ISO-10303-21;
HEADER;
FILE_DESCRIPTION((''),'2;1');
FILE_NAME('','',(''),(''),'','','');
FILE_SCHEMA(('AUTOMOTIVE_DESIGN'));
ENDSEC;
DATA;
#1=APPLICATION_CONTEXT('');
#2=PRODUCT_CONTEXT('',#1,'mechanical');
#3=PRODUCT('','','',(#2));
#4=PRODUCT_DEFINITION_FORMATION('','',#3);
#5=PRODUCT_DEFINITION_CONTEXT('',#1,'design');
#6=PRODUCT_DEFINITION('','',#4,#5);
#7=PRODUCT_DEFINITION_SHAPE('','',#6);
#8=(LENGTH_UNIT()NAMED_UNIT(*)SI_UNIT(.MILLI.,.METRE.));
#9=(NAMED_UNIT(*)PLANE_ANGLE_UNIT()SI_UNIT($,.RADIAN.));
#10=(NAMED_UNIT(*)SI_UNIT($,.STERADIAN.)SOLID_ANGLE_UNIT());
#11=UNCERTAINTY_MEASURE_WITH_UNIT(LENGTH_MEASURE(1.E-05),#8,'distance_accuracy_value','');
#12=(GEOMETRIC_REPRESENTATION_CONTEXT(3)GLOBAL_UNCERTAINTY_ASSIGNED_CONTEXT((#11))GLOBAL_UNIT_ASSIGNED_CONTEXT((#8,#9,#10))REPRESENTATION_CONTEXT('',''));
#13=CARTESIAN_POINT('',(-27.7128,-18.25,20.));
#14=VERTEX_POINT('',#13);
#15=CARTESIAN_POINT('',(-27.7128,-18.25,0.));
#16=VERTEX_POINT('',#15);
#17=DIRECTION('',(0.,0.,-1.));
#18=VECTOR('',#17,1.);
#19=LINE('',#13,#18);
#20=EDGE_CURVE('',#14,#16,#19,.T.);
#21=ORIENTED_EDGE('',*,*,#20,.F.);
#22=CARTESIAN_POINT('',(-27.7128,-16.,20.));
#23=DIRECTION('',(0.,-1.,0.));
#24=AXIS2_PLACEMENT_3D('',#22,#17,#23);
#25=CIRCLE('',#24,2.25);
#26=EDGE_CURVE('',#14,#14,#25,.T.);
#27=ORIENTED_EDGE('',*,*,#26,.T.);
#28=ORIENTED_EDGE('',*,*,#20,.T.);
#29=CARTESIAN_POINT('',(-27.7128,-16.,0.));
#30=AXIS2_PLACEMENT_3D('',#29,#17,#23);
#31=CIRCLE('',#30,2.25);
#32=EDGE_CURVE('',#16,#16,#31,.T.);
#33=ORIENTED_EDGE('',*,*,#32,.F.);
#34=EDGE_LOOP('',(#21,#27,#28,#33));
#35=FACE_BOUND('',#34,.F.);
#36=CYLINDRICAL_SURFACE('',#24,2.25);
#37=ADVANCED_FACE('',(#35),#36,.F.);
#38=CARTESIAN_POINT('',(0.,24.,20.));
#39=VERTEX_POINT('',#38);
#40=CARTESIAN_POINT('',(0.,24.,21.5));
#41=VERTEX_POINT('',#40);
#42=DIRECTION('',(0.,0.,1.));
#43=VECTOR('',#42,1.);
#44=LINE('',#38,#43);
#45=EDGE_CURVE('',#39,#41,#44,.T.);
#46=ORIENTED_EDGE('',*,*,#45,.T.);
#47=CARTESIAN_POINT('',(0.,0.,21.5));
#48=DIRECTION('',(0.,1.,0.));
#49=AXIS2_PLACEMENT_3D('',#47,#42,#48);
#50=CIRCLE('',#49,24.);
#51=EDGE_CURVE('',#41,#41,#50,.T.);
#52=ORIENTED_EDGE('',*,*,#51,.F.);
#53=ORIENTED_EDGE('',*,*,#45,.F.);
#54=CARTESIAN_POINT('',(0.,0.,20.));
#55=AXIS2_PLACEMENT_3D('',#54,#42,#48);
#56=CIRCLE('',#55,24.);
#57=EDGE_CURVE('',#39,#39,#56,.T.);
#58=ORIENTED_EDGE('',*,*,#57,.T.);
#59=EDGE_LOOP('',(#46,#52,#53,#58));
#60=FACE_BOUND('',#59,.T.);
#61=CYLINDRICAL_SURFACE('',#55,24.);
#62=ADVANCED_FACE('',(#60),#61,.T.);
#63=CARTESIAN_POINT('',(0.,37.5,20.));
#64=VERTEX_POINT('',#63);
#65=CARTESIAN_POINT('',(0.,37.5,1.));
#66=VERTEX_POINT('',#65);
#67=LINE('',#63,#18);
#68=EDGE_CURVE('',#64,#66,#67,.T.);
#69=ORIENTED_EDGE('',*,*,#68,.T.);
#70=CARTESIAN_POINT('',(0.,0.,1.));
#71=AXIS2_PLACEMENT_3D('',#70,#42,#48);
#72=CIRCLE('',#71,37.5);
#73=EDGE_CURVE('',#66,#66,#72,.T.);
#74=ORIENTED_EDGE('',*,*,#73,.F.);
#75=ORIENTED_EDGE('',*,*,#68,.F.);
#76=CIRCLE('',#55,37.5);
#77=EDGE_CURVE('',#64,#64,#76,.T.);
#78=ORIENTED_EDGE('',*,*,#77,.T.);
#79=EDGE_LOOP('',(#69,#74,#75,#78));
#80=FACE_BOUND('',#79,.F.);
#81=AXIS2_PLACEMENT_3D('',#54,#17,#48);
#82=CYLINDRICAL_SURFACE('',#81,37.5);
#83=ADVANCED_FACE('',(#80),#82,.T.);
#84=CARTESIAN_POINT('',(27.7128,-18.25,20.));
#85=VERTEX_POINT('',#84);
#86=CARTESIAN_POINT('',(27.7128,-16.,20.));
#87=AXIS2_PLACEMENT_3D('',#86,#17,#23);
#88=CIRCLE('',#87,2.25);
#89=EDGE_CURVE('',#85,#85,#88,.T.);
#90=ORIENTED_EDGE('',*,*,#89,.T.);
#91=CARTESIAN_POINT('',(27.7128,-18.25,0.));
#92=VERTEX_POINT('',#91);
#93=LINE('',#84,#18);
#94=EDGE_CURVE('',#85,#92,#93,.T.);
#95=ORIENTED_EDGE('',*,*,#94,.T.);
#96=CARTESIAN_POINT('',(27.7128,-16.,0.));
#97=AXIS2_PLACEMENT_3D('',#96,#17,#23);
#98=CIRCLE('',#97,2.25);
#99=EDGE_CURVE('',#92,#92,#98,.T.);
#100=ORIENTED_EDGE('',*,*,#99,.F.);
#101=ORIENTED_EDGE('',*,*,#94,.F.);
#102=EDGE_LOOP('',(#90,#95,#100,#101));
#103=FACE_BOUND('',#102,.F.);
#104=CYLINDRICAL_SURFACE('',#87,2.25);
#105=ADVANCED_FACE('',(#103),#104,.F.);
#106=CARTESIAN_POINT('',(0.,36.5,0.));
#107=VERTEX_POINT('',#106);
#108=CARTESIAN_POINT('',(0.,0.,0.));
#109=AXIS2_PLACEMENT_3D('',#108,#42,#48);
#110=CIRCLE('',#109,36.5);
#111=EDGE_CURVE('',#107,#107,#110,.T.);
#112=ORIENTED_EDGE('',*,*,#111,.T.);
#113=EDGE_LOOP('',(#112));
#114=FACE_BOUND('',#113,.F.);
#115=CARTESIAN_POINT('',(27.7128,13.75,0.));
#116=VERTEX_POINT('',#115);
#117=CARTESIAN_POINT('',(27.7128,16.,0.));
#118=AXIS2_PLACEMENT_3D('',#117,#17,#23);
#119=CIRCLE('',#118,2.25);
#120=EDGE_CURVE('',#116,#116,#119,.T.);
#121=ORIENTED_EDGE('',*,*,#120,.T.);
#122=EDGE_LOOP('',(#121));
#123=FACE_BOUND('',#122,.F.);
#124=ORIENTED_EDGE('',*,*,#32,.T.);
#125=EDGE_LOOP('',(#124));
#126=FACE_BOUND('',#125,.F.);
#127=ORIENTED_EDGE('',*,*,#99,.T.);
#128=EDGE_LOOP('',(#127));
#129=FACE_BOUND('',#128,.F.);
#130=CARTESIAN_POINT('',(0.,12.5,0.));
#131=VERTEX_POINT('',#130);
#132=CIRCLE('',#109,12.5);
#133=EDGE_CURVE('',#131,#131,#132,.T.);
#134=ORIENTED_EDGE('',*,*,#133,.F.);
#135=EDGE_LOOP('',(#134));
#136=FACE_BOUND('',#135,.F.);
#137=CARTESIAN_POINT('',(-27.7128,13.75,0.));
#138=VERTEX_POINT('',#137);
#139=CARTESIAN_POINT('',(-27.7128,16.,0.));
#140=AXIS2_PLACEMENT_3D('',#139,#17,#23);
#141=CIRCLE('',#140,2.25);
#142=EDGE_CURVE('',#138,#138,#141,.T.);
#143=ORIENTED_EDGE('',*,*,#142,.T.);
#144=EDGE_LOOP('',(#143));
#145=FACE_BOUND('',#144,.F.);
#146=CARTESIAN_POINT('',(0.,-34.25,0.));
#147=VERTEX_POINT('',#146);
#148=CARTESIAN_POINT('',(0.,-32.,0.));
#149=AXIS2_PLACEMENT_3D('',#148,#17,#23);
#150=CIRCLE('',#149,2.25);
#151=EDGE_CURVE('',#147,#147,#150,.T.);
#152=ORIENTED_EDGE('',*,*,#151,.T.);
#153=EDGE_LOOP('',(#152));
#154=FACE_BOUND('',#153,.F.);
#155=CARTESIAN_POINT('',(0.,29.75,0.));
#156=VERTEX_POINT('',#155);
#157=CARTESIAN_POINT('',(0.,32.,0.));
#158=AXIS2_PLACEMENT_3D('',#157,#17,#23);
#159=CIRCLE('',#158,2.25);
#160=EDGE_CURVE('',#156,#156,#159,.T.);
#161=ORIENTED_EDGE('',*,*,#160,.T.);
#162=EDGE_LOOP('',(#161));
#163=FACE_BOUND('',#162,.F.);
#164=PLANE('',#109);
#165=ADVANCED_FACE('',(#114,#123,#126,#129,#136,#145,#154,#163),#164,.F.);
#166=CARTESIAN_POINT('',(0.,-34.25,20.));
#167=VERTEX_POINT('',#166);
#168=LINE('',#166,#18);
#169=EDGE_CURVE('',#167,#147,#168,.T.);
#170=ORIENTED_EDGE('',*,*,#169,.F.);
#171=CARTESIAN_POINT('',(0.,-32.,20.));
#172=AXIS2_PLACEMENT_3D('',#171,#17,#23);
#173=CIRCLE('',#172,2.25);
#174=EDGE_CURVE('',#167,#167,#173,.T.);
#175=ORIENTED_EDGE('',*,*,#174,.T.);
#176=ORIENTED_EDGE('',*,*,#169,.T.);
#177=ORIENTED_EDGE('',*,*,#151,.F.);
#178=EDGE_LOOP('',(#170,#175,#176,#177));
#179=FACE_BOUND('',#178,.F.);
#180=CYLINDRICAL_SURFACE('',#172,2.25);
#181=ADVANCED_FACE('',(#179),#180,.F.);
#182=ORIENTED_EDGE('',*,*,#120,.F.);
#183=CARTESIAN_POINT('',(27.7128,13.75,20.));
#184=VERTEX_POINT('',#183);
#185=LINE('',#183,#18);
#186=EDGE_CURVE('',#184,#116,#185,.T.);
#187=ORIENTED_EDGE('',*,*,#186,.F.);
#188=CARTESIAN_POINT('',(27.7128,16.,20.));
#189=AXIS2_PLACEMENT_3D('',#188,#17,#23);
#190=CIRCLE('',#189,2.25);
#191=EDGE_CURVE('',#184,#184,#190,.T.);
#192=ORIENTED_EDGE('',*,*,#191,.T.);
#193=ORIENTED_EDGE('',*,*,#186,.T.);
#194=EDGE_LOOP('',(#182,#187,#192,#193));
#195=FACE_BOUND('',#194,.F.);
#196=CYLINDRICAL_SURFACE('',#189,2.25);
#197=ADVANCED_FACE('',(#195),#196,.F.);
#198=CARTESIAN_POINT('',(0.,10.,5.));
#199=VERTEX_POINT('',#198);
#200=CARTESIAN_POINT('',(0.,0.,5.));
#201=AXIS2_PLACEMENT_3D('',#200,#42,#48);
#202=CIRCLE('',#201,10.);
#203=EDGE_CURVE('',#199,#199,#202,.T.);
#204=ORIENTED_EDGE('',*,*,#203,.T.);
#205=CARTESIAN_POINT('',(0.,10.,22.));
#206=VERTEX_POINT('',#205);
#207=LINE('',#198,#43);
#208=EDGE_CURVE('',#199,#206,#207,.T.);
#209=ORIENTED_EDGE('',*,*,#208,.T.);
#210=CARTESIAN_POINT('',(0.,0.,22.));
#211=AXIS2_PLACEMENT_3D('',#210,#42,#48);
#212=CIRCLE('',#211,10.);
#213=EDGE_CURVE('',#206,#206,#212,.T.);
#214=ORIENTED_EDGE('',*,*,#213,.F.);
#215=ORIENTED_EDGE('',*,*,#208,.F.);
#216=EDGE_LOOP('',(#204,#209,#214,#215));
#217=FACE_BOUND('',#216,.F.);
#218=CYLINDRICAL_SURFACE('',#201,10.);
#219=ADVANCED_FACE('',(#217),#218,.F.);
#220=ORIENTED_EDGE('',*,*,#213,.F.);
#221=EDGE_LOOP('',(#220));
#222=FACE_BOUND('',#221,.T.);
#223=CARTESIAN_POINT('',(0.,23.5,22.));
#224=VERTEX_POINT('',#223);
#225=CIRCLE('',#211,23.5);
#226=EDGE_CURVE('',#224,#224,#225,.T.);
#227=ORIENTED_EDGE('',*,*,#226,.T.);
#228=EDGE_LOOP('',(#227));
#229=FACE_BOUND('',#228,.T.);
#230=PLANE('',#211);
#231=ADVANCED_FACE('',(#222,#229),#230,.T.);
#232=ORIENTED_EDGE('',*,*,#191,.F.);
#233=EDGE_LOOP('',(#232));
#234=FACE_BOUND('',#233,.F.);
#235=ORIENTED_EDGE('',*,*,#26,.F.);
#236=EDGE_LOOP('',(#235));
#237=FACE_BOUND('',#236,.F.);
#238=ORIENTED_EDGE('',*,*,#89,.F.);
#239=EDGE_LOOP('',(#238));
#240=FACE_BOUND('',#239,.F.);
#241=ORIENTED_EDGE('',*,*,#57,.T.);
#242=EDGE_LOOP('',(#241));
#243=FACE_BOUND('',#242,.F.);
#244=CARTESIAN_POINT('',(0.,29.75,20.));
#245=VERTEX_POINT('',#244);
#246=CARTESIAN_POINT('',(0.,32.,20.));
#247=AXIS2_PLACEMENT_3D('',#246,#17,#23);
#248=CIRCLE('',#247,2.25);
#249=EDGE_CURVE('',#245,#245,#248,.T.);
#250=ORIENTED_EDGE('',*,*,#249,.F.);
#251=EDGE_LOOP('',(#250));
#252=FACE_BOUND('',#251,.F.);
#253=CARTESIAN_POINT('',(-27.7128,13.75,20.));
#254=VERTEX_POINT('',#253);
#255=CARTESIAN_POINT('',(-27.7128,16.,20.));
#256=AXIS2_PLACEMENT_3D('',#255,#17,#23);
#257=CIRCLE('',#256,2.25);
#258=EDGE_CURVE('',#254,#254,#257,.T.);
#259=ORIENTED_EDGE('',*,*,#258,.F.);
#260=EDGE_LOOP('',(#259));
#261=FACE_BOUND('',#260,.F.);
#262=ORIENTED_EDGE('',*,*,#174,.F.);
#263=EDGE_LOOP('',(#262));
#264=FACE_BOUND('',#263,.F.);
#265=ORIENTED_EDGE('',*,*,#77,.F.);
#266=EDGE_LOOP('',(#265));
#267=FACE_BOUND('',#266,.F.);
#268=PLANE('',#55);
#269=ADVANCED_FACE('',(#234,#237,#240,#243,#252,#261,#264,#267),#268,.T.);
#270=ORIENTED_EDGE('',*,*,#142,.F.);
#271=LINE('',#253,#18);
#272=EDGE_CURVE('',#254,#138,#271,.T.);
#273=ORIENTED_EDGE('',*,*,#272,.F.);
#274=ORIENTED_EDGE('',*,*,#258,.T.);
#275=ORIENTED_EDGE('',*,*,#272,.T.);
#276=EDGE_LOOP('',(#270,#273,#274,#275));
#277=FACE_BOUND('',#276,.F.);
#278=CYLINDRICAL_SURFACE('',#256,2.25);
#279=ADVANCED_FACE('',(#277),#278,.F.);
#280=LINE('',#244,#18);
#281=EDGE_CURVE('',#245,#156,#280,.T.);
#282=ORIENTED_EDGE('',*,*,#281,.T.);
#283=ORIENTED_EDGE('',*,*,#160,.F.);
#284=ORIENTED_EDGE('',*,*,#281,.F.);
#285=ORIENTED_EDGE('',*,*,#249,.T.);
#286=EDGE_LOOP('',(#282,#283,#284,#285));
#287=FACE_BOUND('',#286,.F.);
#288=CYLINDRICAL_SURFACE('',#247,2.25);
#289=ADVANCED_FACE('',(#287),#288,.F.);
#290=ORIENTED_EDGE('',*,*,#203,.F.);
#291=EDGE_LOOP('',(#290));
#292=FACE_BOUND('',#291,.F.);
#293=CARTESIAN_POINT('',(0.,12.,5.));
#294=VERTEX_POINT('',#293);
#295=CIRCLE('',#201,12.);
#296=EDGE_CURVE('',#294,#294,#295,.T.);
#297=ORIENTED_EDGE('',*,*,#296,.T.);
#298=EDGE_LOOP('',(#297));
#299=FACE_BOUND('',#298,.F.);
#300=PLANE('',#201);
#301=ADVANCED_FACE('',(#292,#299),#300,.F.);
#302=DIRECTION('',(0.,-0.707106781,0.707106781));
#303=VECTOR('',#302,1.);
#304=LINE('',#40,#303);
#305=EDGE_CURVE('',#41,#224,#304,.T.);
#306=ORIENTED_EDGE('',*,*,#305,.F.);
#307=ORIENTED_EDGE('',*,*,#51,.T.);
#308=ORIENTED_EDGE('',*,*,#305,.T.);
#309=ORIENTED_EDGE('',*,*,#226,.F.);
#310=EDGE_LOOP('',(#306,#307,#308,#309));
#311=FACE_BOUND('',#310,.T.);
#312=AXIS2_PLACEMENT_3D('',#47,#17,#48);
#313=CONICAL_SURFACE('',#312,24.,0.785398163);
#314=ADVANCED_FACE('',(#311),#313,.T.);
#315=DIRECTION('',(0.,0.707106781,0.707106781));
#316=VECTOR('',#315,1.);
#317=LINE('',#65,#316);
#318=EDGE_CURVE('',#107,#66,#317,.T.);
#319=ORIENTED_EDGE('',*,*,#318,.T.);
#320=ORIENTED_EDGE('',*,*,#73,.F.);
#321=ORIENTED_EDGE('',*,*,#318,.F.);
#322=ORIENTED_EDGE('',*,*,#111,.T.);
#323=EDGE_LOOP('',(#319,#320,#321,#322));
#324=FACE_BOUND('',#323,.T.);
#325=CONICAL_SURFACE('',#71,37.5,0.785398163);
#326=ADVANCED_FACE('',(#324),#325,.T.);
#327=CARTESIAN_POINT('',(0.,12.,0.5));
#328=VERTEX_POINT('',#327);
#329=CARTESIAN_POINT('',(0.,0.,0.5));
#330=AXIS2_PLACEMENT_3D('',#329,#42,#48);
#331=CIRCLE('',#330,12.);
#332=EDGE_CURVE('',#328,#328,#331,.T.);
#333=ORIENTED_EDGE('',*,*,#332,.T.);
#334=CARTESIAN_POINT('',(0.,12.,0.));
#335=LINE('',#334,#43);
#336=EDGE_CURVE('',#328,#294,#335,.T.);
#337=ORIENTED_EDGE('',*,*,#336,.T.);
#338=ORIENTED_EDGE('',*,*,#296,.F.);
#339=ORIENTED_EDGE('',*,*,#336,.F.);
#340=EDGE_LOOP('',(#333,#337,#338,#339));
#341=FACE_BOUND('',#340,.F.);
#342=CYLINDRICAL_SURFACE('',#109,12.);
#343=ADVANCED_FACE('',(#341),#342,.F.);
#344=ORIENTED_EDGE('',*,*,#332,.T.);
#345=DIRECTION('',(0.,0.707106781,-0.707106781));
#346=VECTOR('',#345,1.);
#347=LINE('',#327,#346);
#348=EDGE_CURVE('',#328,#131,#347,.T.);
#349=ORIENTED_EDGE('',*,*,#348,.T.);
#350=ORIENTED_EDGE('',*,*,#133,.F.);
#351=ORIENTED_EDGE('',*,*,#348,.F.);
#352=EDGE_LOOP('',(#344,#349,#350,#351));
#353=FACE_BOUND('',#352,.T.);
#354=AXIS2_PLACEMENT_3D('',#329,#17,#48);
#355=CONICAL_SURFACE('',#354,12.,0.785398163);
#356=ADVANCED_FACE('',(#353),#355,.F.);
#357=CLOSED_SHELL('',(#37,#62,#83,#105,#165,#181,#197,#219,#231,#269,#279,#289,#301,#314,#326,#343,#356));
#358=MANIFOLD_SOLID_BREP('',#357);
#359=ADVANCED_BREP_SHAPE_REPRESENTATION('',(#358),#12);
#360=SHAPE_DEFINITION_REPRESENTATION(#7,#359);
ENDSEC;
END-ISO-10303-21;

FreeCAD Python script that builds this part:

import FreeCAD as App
import Part
import Sketcher
from FreeCAD import Vector
Q = App.Units.Quantity


def edges_at(feature, points):
    """Names of the edges that pass closest to the given points."""
    edges = feature.Shape.Edges
    near = lambda p: min(range(len(edges)), key=lambda i: edges[i].distToShape(Part.Vertex(*p))[0])
    return sorted({f"Edge{near(p) + 1}" for p in points})

doc = App.newDocument("Part")
params = doc.addObject("Spreadsheet::Sheet", "Params")
for row, (alias, value) in enumerate([
    ("sketch1_width", "2 mm"),
    ("sketch1_height", "5 mm"),
    ("sketch1_height2", "20 mm"),
    ("revolution_angle", "360 deg"),
    ("chamfer_size", "0.5 mm"),
    ("sketch2_diameter", "4.5 mm"),
    ("hole_diameter", "4.5 mm"),
    ("chamfer2_size", "1 mm"),
    ("chamfer3_size", "0.5 mm"),
], start=1):
    params.set(f"A{row}", alias)
    params.set(f"B{row}", "=" + value)
    params.setAlias(f"B{row}", alias)

body = doc.addObject("PartDesign::Body", "Body")

sketch1 = doc.addObject("Sketcher::SketchObject", "Sketch")
body.addObject(sketch1)
sketch1.AttachmentSupport = (doc.YZ_Plane, [""])
sketch1.MapMode = "FlatFace"
sketch1.addGeometry([
    Part.LineSegment(Vector(12, 5, 0), Vector(12, 0, 0)),
    Part.LineSegment(Vector(12, 0, 0), Vector(37.5, 0, 0)),
    Part.LineSegment(Vector(37.5, 0, 0), Vector(37.5, 20, 0)),
    Part.LineSegment(Vector(37.5, 20, 0), Vector(24, 20, 0)),
    Part.LineSegment(Vector(24, 20, 0), Vector(24, 22, 0)),
    Part.LineSegment(Vector(24, 22, 0), Vector(10, 22, 0)),
    Part.LineSegment(Vector(10, 22, 0), Vector(10, 5, 0)),
    Part.LineSegment(Vector(10, 5, 0), Vector(12, 5, 0)),
], False)
sketch1.addConstraint([
    Sketcher.Constraint("Coincident", 0, 2, 1, 1),
    Sketcher.Constraint("Coincident", 1, 2, 2, 1),
    Sketcher.Constraint("Coincident", 2, 2, 3, 1),
    Sketcher.Constraint("Coincident", 3, 2, 4, 1),
    Sketcher.Constraint("Coincident", 4, 2, 5, 1),
    Sketcher.Constraint("Coincident", 5, 2, 6, 1),
    Sketcher.Constraint("Coincident", 6, 2, 7, 1),
    Sketcher.Constraint("Coincident", 7, 2, 0, 1),
    Sketcher.Constraint("Vertical", 0),
    Sketcher.Constraint("Horizontal", 1),
    Sketcher.Constraint("Vertical", 2),
    Sketcher.Constraint("Horizontal", 3),
    Sketcher.Constraint("Vertical", 4),
    Sketcher.Constraint("Horizontal", 5),
    Sketcher.Constraint("Vertical", 6),
    Sketcher.Constraint("Horizontal", 7),
    Sketcher.Constraint("PointOnObject", 0, 2, -1),
    Sketcher.Constraint("Equal", 7, 4),
    Sketcher.Constraint("DistanceX", 7, 1, 7, 2, Q("2 mm")),
    Sketcher.Constraint("DistanceY", 0, 2, 0, 1, Q("5 mm")),
    Sketcher.Constraint("DistanceY", 2, 1, 2, 2, Q("20 mm")),
    Sketcher.Constraint("DistanceX", -1, 1, 0, 2, Q("12 mm")),
    Sketcher.Constraint("DistanceX", -1, 1, 3, 2, Q("24 mm")),
    Sketcher.Constraint("DistanceX", -1, 1, 1, 2, Q("37.5 mm")),
])
sketch1.setExpression("Constraints[18]", "Params.sketch1_width")
sketch1.setExpression("Constraints[19]", "Params.sketch1_height")
sketch1.setExpression("Constraints[20]", "Params.sketch1_height2")
revolution = doc.addObject("PartDesign::Revolution", "Revolution")
body.addObject(revolution)
revolution.Profile = sketch1
revolution.ReferenceAxis = (sketch1, ["V_Axis"])
revolution.setExpression("Angle", "Params.revolution_angle")
doc.recompute()

chamfer = doc.addObject("PartDesign::Chamfer", "Chamfer")
body.addObject(chamfer)
chamfer.Base = (revolution, edges_at(revolution, [(0, -12, 0)]))
chamfer.setExpression("Size", "Params.chamfer_size")

sketch2 = doc.addObject("Sketcher::SketchObject", "Sketch001")
body.addObject(sketch2)
sketch2.AttachmentSupport = (doc.XY_Plane, [""])
sketch2.MapMode = "FlatFace"
sketch2.AttachmentOffset = App.Placement(Vector(0, 0, 20), App.Rotation())
sketch2.addGeometry([
    Part.Circle(Vector(0, 32, 0), Vector(0, 0, 1), 2.25),
    Part.Circle(Vector(-27.7128, 16, 0), Vector(0, 0, 1), 2.25),
    Part.Circle(Vector(-27.7128, -16, 0), Vector(0, 0, 1), 2.25),
    Part.Circle(Vector(0, -32, 0), Vector(0, 0, 1), 2.25),
    Part.Circle(Vector(27.7128, -16, 0), Vector(0, 0, 1), 2.25),
    Part.Circle(Vector(27.7128, 16, 0), Vector(0, 0, 1), 2.25),
], False)
sketch2.addConstraint([
    Sketcher.Constraint("Equal", 0, 1),
    Sketcher.Constraint("Equal", 1, 2),
    Sketcher.Constraint("Equal", 2, 3),
    Sketcher.Constraint("Equal", 3, 4),
    Sketcher.Constraint("Equal", 4, 5),
    Sketcher.Constraint("Symmetric", 0, 3, 3, 3, -1, 1),
    Sketcher.Constraint("Symmetric", 1, 3, 4, 3, -1, 1),
    Sketcher.Constraint("Symmetric", 2, 3, 5, 3, -1, 1),
    Sketcher.Constraint("Symmetric", 2, 3, 4, 3, -2),
    Sketcher.Constraint("PointOnObject", 0, 3, -2),
    Sketcher.Constraint("Diameter", 0, Q("4.5 mm")),
    Sketcher.Constraint("DistanceY", -1, 1, 0, 3, Q("32 mm")),
    Sketcher.Constraint("DistanceY", -1, 1, 1, 3, Q("16 mm")),
    Sketcher.Constraint("DistanceX", 1, 3, -1, 1, Q("27.7128 mm")),
])
sketch2.setExpression("Constraints[10]", "Params.sketch2_diameter")
doc.recompute()
hole = doc.addObject("PartDesign::Hole", "Hole")
body.addObject(hole)
hole.Profile = sketch2
hole.ThreadType = "None"
hole.setExpression("Diameter", "Params.hole_diameter")
hole.DepthType = "ThroughAll"
doc.recompute()

chamfer2 = doc.addObject("PartDesign::Chamfer", "Chamfer001")
body.addObject(chamfer2)
chamfer2.Base = (hole, edges_at(hole, [(0, -37.5, 0)]))
chamfer2.setExpression("Size", "Params.chamfer2_size")
doc.recompute()

chamfer3 = doc.addObject("PartDesign::Chamfer", "Chamfer002")
body.addObject(chamfer3)
chamfer3.Base = (chamfer2, edges_at(chamfer2, [(0, -24, 22)]))
chamfer3.setExpression("Size", "Params.chamfer3_size")

doc.recompute()
